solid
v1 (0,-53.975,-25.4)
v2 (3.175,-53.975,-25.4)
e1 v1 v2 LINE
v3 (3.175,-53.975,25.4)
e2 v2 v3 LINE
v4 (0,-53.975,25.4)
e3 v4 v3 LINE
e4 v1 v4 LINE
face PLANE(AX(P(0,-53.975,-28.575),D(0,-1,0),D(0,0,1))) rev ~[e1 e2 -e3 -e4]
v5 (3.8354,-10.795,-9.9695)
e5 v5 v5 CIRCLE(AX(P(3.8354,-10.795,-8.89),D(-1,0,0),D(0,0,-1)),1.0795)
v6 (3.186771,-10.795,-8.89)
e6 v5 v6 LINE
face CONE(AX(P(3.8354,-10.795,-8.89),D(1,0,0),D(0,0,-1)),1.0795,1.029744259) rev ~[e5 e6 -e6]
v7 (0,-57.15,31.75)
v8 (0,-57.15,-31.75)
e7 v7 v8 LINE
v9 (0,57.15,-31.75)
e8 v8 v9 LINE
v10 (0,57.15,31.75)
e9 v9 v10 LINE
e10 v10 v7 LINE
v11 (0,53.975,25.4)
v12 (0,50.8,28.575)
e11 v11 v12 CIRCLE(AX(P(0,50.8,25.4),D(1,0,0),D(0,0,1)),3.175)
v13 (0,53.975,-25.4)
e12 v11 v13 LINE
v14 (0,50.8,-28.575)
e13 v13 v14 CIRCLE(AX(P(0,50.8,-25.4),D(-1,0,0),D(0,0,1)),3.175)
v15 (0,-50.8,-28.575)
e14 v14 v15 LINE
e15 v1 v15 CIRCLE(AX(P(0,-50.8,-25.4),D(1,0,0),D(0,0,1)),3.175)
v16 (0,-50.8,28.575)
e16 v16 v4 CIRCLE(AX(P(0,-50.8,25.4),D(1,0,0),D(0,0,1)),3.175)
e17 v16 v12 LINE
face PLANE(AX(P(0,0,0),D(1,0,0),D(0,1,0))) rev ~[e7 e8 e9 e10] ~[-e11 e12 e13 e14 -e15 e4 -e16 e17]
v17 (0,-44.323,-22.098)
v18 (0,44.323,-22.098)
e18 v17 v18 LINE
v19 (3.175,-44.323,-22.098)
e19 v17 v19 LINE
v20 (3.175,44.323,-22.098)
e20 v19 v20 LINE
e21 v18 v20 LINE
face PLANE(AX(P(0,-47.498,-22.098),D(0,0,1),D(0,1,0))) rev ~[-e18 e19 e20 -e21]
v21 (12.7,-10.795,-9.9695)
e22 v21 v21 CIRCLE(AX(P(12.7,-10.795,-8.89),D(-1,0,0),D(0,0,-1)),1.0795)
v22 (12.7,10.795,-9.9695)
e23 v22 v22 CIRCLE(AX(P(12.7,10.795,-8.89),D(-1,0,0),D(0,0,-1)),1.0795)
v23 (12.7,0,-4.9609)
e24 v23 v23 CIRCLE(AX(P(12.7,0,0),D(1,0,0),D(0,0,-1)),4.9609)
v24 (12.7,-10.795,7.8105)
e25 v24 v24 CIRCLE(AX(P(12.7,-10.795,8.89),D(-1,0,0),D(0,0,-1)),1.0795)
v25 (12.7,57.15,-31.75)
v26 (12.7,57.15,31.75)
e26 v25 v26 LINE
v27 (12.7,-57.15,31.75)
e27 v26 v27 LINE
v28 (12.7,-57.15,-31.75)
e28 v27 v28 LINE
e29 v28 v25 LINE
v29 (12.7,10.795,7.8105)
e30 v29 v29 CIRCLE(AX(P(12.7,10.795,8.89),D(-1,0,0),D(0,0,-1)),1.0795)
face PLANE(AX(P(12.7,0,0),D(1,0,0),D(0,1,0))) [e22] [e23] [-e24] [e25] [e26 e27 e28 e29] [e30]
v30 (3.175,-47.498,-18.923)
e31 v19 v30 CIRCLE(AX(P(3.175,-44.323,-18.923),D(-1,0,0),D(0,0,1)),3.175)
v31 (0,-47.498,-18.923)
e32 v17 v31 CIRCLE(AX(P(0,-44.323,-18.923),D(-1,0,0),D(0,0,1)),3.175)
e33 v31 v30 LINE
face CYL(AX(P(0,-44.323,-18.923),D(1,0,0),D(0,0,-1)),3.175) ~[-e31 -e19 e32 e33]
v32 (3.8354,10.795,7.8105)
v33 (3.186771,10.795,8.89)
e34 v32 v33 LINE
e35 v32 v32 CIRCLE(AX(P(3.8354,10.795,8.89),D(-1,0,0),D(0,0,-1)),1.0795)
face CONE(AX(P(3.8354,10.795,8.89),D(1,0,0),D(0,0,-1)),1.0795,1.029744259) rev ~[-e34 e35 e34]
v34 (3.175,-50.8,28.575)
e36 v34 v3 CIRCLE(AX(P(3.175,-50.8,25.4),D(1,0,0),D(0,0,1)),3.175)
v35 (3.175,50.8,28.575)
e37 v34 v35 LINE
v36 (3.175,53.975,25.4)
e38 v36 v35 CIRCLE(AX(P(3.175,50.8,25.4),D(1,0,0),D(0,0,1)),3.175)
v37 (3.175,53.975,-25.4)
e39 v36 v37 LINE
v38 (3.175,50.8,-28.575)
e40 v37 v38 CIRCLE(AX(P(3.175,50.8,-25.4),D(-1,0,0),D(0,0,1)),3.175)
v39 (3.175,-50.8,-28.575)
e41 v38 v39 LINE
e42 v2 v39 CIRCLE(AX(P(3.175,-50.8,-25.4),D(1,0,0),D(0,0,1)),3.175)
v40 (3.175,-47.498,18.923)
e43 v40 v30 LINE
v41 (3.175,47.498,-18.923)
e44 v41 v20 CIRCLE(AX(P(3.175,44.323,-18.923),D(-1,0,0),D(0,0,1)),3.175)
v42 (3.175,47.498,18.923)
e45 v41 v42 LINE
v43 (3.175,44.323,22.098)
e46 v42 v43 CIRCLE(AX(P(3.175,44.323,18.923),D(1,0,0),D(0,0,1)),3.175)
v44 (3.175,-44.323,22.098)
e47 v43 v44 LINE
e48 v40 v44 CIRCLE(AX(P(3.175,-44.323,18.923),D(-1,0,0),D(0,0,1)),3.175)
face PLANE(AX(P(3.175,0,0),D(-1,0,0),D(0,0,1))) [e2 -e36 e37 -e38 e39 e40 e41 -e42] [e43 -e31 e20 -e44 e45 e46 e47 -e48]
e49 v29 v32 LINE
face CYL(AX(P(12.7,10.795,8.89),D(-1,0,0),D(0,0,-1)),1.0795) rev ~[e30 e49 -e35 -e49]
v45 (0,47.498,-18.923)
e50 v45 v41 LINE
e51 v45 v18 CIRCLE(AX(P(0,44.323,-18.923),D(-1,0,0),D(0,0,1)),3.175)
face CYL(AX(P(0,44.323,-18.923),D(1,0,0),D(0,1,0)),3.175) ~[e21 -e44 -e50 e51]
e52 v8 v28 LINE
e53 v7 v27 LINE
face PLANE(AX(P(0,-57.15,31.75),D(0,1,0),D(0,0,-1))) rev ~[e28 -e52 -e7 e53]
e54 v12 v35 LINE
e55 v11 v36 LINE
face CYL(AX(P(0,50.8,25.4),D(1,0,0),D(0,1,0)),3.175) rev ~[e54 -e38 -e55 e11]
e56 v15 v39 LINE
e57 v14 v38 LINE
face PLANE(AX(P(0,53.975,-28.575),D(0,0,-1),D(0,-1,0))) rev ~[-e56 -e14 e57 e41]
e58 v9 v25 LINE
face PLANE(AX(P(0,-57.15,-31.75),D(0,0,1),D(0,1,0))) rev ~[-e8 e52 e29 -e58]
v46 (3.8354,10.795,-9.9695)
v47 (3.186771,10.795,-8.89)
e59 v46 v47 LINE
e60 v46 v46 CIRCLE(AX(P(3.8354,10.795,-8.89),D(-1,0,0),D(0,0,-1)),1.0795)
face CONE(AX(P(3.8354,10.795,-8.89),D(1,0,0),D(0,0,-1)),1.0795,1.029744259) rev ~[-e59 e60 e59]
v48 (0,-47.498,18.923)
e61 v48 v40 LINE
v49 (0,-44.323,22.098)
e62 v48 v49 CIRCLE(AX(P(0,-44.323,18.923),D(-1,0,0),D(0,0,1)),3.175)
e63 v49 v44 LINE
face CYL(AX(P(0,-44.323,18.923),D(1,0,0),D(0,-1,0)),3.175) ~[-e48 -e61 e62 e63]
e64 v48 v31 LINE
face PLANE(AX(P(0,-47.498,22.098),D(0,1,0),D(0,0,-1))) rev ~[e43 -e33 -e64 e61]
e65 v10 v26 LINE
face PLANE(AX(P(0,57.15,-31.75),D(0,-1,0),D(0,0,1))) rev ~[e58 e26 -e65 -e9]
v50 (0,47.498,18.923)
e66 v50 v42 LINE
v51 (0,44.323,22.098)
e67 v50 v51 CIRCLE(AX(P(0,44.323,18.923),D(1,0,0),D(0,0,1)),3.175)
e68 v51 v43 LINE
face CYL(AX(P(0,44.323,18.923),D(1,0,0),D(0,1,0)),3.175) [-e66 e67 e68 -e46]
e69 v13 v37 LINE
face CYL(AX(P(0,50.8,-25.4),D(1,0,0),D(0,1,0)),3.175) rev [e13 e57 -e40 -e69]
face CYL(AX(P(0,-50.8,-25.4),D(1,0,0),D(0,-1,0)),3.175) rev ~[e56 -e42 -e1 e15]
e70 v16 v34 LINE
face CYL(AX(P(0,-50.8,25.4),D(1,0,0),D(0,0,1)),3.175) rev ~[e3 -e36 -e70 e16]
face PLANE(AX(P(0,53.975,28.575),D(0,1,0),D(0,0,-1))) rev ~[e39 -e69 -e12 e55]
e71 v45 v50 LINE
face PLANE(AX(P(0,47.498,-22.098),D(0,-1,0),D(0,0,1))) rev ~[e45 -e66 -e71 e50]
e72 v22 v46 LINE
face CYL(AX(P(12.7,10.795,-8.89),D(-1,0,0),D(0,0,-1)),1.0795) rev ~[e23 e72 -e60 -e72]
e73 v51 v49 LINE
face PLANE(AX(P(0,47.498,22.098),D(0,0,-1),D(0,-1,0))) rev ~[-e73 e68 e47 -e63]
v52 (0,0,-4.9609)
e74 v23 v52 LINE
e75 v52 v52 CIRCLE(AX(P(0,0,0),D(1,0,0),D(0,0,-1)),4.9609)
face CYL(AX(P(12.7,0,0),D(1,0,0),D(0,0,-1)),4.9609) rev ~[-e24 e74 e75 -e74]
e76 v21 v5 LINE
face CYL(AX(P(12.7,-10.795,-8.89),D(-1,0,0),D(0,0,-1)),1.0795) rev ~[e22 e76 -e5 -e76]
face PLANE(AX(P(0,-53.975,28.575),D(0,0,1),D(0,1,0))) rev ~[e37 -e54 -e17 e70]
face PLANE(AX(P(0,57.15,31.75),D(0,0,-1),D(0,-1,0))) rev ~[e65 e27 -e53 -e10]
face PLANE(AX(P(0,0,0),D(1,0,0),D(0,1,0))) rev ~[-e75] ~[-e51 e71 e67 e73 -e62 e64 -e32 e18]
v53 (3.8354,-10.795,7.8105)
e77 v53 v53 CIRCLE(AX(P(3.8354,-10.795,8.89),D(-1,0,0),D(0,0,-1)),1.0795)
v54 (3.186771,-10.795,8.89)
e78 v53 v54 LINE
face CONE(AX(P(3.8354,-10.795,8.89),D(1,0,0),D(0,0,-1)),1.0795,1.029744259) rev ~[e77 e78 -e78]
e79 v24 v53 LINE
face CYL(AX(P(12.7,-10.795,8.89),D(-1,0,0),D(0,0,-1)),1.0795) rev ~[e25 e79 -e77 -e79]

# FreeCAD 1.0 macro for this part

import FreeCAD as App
import Part
import Sketcher
from FreeCAD import Vector
Q = App.Units.Quantity


def edges_at(feature, points):
    """Names of the edges that pass closest to the given points."""
    edges = feature.Shape.Edges
    near = lambda p: min(range(len(edges)), key=lambda i: edges[i].distToShape(Part.Vertex(*p))[0])
    return sorted({f"Edge{near(p) + 1}" for p in points})


def add_polygon(sketch, points):
    """Adds a closed chain of lines whose ends are joined by coincident constraints."""
    first, n = sketch.GeometryCount, len(points)
    for a, b in zip(points, points[1:] + points[:1]):
        sketch.addGeometry(Part.LineSegment(App.Vector(*a, 0), App.Vector(*b, 0)), False)
    for i in range(n):
        sketch.addConstraint(Sketcher.Constraint("Coincident", first + i, 2, first + (i + 1) % n, 1))

doc = App.newDocument("Part")
body = doc.addObject("PartDesign::Body", "Body")

# Sketch on YZ plane
sketch1 = body.newObject("Sketcher::SketchObject", "Sketch")
sketch1.AttachmentSupport = (doc.getObject("YZ_Plane"), [""])
sketch1.MapMode = "FlatFace"
add_polygon(sketch1, [(57, -32), (57, 32), (-57, 32), (-57, -32)])  # lines 0-3
sketch1.addConstraint([
    Sketcher.Constraint("Vertical", 0),
    Sketcher.Constraint("Horizontal", 1),
    Sketcher.Constraint("Vertical", 2),
    Sketcher.Constraint("Horizontal", 3),
    Sketcher.Constraint("Symmetric", 0, 2, 2, 2, -1, 1),
    Sketcher.Constraint("DistanceX", 1, 2, 1, 1, Q("4.5 in")),
    Sketcher.Constraint("DistanceY", 0, 1, 0, 2, Q("2.5 in")),
])
pad1 = body.newObject("PartDesign::Pad", "Pad")
pad1.Profile = sketch1
pad1.Length = Q("0.5 in")

# Sketch on YZ plane
sketch2 = body.newObject("Sketcher::SketchObject", "Sketch001")
sketch2.AttachmentSupport = (doc.getObject("YZ_Plane"), [""])
sketch2.MapMode = "FlatFace"
add_polygon(sketch2, [(54, -29), (-54, -29), (-54, 29), (54, 29)])  # lines 0-3
add_polygon(sketch2, [(47, -22), (47, 22), (-47, 22), (-47, -22)])  # lines 4-7
sketch2.addConstraint([
    Sketcher.Constraint("Horizontal", 0),
    Sketcher.Constraint("Vertical", 1),
    Sketcher.Constraint("Horizontal", 2),
    Sketcher.Constraint("Vertical", 3),
    Sketcher.Constraint("Vertical", 4),
    Sketcher.Constraint("Horizontal", 5),
    Sketcher.Constraint("Vertical", 6),
    Sketcher.Constraint("Horizontal", 7),
    Sketcher.Constraint("Symmetric", 0, 2, 2, 2, -1, 1),
    Sketcher.Constraint("Symmetric", 4, 2, 6, 2, -1, 1),
    Sketcher.Constraint("DistanceX", 0, 2, 0, 1, Q("4.25 in")),
    Sketcher.Constraint("DistanceY", 1, 1, 1, 2, Q("2.25 in")),
    Sketcher.Constraint("DistanceX", 4, 2, 2, 2, Q("0.255 in")),
    Sketcher.Constraint("DistanceY", 4, 2, 2, 2, Q("0.255 in")),
])
pocket1 = body.newObject("PartDesign::Pocket", "Pocket")
pocket1.Profile = sketch2
pocket1.Length = Q("0.125 in")
pocket1.Reversed = True

# Sketch on YZ plane
sketch3 = body.newObject("Sketcher::SketchObject", "Sketch002")
sketch3.AttachmentSupport = (doc.getObject("YZ_Plane"), [""])
sketch3.MapMode = "FlatFace"
sketch3.AttachmentOffset = App.Placement(Vector(0, 0, 0.5 * 25.4), App.Rotation())
sketch3.addGeometry(Part.Circle(Vector(0, 0, 0), Vector(0, 0, 1), 5), False)
sketch3.addConstraint([
    Sketcher.Constraint("Coincident", 0, 3, -1, 1),
    Sketcher.Constraint("Diameter", 0, Q("0.390622 in")),
])
pocket2 = body.newObject("PartDesign::Pocket", "Pocket001")
pocket2.Profile = sketch3
pocket2.Type = "ThroughAll"

# Sketch on YZ plane
sketch4 = body.newObject("Sketcher::SketchObject", "Sketch003")
sketch4.AttachmentSupport = (doc.getObject("YZ_Plane"), [""])
sketch4.MapMode = "FlatFace"
sketch4.AttachmentOffset = App.Placement(Vector(0, 0, 0.5 * 25.4), App.Rotation())
sketch4.addGeometry([
    Part.Circle(Vector(-10.8, 8.9, 0), Vector(0, 0, 1), 1.1),
    Part.Circle(Vector(10.8, 8.9, 0), Vector(0, 0, 1), 1.1),
    Part.Circle(Vector(10.8, -8.9, 0), Vector(0, 0, 1), 1.1),
    Part.Circle(Vector(-10.8, -8.9, 0), Vector(0, 0, 1), 1.1),
], False)
sketch4.addConstraint([
    Sketcher.Constraint("Equal", 0, 1),
    Sketcher.Constraint("Equal", 1, 2),
    Sketcher.Constraint("Equal", 2, 3),
    Sketcher.Constraint("Symmetric", 0, 3, 2, 3, -1, 1),
    Sketcher.Constraint("Symmetric", 1, 3, 3, 3, -1, 1),
    Sketcher.Constraint("Symmetric", 0, 3, 1, 3, -2),
    Sketcher.Constraint("Diameter", 0, Q("0.085 in")),
    Sketcher.Constraint("DistanceY", 2, 3, 1, 3, Q("0.7 in")),
    Sketcher.Constraint("DistanceX", 0, 3, 1, 3, Q("0.85 in")),
])
doc.recompute()
hole = body.newObject("PartDesign::Hole", "Hole")
hole.Profile = sketch4
hole.ThreadType = "None"
hole.Diameter = Q("0.085 in")
hole.DepthType = "Dimension"
hole.Depth = Q("0.349 in")
hole.DrillPoint = "Angled"
hole.DrillPointAngle = 118
doc.recompute()

fillet = body.newObject("PartDesign::Fillet", "Fillet")
fillet.Base = (hole, edges_at(hole, [
    (1.587, 53.975, 28.575),
    (1.587, -47.498, 22.098),
    (1.587, -47.498, -22.098),
    (1.587, -53.975, -28.575),
    (1.587, 47.498, -22.098),
    (1.587, -53.975, 28.575),
    (1.587, 53.975, -28.575),
    (1.587, 47.498, 22.098),
]))
fillet.Radius = Q("0.125 in")

doc.recompute()
